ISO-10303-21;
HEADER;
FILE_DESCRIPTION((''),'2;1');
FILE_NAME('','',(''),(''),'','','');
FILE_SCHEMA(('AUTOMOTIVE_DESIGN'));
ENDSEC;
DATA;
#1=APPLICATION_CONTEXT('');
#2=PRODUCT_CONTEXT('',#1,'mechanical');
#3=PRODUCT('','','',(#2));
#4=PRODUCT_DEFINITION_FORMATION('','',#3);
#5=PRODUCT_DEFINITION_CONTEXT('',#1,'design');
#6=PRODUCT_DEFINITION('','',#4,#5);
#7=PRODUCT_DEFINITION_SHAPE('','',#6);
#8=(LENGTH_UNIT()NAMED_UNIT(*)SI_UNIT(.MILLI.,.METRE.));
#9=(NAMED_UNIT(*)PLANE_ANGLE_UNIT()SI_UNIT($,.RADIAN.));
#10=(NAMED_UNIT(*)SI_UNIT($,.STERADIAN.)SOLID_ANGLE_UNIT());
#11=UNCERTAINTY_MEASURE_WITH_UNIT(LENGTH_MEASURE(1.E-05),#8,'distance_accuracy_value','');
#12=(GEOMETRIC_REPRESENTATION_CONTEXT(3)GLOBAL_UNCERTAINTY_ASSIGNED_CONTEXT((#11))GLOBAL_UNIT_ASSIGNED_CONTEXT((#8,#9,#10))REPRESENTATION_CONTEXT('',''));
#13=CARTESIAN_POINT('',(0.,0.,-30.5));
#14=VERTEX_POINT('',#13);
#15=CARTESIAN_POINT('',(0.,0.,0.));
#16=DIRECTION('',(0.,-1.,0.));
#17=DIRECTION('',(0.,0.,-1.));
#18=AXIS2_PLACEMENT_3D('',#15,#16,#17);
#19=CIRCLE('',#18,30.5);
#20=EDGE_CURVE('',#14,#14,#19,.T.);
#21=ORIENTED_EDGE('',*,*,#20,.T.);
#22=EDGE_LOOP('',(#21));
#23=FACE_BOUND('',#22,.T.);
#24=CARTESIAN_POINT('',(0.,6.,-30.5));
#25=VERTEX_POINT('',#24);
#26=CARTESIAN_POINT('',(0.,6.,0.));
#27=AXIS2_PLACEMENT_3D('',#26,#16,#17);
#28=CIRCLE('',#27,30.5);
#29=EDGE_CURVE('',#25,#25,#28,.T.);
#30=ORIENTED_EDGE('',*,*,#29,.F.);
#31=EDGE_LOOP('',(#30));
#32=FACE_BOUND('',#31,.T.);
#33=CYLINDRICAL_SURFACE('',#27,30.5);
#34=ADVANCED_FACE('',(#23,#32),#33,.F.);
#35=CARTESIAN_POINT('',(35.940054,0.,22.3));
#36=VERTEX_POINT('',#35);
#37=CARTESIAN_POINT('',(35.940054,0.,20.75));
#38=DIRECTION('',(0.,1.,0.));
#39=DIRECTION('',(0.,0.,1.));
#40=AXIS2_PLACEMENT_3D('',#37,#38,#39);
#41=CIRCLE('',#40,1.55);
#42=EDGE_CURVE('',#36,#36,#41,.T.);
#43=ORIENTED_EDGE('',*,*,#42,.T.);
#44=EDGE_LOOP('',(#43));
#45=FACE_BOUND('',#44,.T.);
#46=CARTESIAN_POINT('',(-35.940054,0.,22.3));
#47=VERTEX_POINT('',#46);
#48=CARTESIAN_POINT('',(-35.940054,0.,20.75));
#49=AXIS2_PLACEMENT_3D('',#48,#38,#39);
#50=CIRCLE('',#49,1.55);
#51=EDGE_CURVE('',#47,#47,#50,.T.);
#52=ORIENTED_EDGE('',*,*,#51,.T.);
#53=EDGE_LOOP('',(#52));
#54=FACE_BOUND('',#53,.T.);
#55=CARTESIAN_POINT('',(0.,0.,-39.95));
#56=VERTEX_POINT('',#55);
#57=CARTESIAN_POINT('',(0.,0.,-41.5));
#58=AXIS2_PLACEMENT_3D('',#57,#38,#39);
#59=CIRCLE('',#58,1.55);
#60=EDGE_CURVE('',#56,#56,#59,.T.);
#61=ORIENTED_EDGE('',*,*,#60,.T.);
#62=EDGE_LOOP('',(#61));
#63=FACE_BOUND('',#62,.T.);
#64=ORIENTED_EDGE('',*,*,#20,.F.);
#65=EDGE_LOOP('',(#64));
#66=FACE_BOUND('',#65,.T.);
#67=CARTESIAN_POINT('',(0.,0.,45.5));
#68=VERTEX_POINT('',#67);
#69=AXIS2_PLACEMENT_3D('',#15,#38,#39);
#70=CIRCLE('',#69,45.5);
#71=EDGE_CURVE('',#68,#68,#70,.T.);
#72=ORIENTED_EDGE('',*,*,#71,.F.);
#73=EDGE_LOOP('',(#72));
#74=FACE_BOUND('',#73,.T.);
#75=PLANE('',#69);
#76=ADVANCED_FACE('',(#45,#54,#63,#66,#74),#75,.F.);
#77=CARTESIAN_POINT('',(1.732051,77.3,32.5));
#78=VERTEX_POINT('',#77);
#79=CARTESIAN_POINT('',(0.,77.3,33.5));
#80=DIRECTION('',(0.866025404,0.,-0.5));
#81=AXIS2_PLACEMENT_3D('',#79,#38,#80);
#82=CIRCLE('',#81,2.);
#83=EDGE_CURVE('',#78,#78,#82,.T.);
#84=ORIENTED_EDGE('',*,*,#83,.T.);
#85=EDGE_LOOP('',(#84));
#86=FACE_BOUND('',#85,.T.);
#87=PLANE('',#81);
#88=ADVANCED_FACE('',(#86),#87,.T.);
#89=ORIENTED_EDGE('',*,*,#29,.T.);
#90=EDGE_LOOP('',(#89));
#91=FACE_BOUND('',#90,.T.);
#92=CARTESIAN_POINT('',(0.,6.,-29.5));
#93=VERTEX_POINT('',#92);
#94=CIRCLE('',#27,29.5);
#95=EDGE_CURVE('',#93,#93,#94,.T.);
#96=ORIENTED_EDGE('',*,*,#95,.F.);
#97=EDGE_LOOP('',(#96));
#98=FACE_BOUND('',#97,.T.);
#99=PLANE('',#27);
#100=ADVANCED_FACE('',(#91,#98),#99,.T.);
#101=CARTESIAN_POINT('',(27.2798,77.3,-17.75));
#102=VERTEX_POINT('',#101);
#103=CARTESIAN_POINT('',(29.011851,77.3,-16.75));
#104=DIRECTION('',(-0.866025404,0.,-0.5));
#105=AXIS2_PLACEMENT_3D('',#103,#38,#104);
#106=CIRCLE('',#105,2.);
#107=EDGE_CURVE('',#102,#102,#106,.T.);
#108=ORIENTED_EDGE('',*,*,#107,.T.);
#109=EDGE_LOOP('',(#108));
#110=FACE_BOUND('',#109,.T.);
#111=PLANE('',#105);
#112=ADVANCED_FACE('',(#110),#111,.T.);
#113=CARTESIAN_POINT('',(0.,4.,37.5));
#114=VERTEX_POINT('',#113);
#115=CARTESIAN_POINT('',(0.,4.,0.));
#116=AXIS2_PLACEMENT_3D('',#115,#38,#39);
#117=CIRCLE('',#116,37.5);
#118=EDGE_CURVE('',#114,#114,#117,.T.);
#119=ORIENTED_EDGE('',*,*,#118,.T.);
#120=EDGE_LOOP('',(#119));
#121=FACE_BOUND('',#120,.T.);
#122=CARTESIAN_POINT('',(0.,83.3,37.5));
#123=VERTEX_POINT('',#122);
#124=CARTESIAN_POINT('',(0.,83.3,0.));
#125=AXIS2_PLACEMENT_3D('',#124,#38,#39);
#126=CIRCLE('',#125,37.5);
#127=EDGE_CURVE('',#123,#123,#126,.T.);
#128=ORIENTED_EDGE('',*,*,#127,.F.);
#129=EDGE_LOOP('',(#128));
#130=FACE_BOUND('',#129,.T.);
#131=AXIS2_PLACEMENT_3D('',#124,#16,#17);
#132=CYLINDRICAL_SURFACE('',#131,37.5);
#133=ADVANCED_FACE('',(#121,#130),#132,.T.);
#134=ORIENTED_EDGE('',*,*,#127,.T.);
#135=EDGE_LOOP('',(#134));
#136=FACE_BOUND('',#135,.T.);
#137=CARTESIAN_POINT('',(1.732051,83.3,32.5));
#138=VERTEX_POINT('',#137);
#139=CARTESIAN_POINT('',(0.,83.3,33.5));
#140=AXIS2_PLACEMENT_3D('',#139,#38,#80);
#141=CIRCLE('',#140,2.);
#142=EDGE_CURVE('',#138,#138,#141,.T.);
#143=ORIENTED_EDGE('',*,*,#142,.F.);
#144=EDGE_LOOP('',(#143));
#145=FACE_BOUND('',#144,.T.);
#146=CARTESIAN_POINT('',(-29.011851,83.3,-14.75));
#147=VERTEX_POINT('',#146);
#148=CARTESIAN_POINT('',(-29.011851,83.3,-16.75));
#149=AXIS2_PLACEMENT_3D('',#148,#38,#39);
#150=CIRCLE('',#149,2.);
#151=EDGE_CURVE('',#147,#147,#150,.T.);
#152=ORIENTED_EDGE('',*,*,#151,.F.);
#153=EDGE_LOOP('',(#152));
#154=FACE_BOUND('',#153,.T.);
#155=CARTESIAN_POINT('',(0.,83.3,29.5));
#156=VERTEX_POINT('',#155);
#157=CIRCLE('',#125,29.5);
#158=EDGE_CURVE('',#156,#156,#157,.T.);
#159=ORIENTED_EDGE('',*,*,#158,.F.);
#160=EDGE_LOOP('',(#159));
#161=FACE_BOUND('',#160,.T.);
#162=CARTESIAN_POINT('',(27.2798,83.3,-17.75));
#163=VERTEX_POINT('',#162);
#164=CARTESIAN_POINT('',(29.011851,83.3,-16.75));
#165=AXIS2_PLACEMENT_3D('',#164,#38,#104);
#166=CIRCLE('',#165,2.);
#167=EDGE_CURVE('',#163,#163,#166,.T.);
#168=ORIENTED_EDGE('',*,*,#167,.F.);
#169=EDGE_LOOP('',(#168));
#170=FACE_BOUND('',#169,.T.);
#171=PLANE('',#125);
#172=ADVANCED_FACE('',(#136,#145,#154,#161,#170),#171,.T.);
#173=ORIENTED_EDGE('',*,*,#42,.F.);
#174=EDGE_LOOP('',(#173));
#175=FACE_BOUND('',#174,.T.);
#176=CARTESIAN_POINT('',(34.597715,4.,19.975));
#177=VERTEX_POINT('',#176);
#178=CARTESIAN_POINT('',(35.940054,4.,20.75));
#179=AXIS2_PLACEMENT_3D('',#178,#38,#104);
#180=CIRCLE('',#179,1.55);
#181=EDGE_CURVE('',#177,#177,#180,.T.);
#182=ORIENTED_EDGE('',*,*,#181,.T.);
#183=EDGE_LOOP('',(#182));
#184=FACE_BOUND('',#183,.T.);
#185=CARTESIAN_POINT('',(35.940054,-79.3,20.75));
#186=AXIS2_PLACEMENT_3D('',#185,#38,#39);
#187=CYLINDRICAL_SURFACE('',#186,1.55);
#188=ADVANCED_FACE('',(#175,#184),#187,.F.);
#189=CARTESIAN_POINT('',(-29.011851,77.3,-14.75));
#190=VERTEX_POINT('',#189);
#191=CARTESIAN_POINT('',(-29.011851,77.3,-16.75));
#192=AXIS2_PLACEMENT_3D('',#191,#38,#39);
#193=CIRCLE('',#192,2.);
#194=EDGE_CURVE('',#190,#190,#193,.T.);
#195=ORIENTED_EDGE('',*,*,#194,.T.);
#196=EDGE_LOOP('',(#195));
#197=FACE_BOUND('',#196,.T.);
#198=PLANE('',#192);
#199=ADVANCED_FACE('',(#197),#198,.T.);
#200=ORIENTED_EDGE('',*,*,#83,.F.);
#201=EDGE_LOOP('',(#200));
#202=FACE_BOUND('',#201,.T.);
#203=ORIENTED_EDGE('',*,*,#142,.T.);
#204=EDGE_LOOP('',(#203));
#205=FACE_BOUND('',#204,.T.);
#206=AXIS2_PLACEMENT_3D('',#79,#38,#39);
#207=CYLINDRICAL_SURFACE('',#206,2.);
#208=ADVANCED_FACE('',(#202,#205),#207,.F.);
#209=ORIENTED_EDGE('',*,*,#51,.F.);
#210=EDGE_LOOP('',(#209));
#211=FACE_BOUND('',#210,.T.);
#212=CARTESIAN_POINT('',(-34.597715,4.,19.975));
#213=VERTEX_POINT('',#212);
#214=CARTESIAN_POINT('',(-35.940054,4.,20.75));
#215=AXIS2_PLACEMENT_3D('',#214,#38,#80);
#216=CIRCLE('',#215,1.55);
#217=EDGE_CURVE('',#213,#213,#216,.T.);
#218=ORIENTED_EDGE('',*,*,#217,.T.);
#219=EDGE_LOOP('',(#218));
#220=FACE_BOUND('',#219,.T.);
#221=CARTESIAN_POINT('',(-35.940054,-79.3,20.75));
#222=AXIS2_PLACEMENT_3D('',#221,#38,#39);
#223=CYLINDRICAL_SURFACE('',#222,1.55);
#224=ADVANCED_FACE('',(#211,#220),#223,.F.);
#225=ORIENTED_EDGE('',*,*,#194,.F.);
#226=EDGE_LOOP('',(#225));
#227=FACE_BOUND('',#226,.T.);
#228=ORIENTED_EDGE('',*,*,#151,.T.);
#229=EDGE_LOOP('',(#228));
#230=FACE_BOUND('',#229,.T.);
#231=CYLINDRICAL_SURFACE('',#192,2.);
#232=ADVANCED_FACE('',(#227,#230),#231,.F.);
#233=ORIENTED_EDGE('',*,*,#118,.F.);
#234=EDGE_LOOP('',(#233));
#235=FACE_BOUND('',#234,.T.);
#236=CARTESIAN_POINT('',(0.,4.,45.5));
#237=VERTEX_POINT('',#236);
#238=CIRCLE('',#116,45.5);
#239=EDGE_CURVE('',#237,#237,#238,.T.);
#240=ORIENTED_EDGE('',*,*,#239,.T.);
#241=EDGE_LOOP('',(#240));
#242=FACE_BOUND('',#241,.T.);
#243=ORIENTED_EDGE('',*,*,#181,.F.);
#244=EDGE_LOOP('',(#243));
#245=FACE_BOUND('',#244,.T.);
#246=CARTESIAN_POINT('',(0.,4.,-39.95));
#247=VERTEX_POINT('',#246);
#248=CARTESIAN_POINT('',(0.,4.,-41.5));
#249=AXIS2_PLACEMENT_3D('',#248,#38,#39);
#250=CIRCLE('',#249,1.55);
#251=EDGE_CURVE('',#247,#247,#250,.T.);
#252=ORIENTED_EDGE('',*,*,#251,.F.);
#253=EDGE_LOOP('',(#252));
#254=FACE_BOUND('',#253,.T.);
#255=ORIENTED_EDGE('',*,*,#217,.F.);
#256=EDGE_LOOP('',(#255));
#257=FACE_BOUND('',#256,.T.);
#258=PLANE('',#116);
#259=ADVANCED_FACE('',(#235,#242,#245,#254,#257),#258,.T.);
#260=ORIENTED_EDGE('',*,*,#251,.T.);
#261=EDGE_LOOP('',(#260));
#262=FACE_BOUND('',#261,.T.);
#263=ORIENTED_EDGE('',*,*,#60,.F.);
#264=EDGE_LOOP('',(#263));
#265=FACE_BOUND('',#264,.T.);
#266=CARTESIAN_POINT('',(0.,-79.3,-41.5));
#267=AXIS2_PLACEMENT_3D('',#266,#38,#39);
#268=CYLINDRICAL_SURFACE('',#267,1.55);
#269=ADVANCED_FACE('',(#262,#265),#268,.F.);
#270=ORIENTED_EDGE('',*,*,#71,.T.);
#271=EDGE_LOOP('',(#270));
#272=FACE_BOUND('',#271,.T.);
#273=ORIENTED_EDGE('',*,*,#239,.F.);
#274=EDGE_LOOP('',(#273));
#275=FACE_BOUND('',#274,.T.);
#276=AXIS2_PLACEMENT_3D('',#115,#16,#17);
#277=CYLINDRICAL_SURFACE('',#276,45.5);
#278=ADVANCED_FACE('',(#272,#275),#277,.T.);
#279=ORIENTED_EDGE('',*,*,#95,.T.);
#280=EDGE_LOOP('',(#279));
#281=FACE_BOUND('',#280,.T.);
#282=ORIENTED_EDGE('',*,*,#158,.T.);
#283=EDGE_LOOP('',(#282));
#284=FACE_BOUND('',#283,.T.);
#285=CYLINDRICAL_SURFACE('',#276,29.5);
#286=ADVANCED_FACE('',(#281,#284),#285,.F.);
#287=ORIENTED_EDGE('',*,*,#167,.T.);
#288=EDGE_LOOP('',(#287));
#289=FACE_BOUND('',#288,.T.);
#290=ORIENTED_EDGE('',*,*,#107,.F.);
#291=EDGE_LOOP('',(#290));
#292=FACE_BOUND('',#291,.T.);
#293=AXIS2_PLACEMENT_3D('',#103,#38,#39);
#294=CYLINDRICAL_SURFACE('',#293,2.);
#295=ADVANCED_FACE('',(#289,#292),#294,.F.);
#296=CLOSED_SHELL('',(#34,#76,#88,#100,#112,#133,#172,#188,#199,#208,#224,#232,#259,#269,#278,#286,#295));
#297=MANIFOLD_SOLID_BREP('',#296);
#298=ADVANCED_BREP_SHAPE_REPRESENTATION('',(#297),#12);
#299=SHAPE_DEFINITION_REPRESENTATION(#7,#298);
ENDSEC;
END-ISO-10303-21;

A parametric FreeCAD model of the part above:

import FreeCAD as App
import Part
import Sketcher
from FreeCAD import Vector

doc = App.newDocument("Part")
body = doc.addObject("PartDesign::Body", "Body")

# Sketch on XZ plane
sketch1 = body.newObject("Sketcher::SketchObject", "Sketch")
sketch1.AttachmentSupport = (doc.getObject("XZ_Plane"), [""])
sketch1.MapMode = "FlatFace"
sketch1.addGeometry(Part.Circle(Vector(0, 0, 0), Vector(0, 0, 1), 46), False)
sketch1.addGeometry(Part.Circle(Vector(0, 0, 0), Vector(0, 0, 1), 30), False)
sketch1.addConstraint(Sketcher.Constraint("Coincident", 0, 3, -1, 1))
sketch1.addConstraint(Sketcher.Constraint("Coincident", 1, 3, -1, 1))
sketch1.addConstraint(Sketcher.Constraint("Diameter", 0, 91.0))
sketch1.addConstraint(Sketcher.Constraint("Diameter", 1, 59.0))
pad1 = body.newObject("PartDesign::Pad", "Pad")
pad1.Profile = sketch1
pad1.Length = 4
pad1.Reversed = True

# Sketch on XZ plane
sketch2 = body.newObject("Sketcher::SketchObject", "Sketch001")
sketch2.AttachmentSupport = (doc.getObject("XZ_Plane"), [""])
sketch2.MapMode = "FlatFace"
sketch2.AttachmentOffset = App.Placement(Vector(0, 0, -4), App.Rotation())
sketch2.addGeometry(Part.Circle(Vector(0, 0, 0), Vector(0, 0, 1), 38), False)
sketch2.addGeometry(Part.Circle(Vector(0, 0, 0), Vector(0, 0, 1), 30), False)
sketch2.addConstraint(Sketcher.Constraint("Coincident", 0, 3, -1, 1))
sketch2.addConstraint(Sketcher.Constraint("Coincident", 1, 3, -1, 1))
sketch2.addConstraint(Sketcher.Constraint("Diameter", 0, 75.0))
sketch2.addConstraint(Sketcher.Constraint("Diameter", 1, 59.0))
pad2 = body.newObject("PartDesign::Pad", "Pad001")
pad2.Profile = sketch2
pad2.Length = 79.3
pad2.Reversed = True

# Sketch on XZ plane
sketch3 = body.newObject("Sketcher::SketchObject", "Sketch002")
sketch3.AttachmentSupport = (doc.getObject("XZ_Plane"), [""])
sketch3.MapMode = "FlatFace"
sketch3.AttachmentOffset = App.Placement(Vector(0, 0, -4), App.Rotation())
sketch3.addGeometry(Part.Circle(Vector(0, -41.5, 0), Vector(0, 0, 1), 1.6), False)
sketch3.addConstraint(Sketcher.Constraint("PointOnObject", 0, 3, -2))
sketch3.addConstraint(Sketcher.Constraint("Diameter", 0, 3.1))
sketch3.addConstraint(Sketcher.Constraint("DistanceY", 0, 3, -1, 1, 41.5))
pocket1 = body.newObject("PartDesign::Pocket", "Pocket")
pocket1.Profile = sketch3
pocket1.Length = 83.3
pocket1.Reversed = True
doc.recompute()

polarpattern = body.newObject("PartDesign::PolarPattern", "PolarPattern")
polarpattern.Originals = [pocket1]
polarpattern.Axis = (doc.getObject("Y_Axis"), [""])
polarpattern.Angle = 360
polarpattern.Occurrences = 3
body.Tip = polarpattern

# Sketch on XZ plane
sketch4 = body.newObject("Sketcher::SketchObject", "Sketch003")
sketch4.AttachmentSupport = (doc.getObject("XZ_Plane"), [""])
sketch4.MapMode = "FlatFace"
sketch4.AttachmentOffset = App.Placement(Vector(0, 0, -83.3), App.Rotation())
sketch4.addGeometry(Part.Circle(Vector(-29, -16.8, 0), Vector(0, 0, 1), 2), False)
sketch4.addConstraint(Sketcher.Constraint("Diameter", 0, 4.0))
sketch4.addConstraint(Sketcher.Constraint("DistanceY", 0, 3, -1, 1, 16.75))
sketch4.addConstraint(Sketcher.Constraint("DistanceX", 0, 3, -1, 1, 29.011851))
pocket2 = body.newObject("PartDesign::Pocket", "Pocket001")
pocket2.Profile = sketch4
pocket2.Length = 6
pocket2.Reversed = True
doc.recompute()

polarpattern2 = body.newObject("PartDesign::PolarPattern", "PolarPattern001")
polarpattern2.Originals = [pocket2]
polarpattern2.Axis = (doc.getObject("Y_Axis"), [""])
polarpattern2.Angle = 360
polarpattern2.Occurrences = 3
body.Tip = polarpattern2

# Sketch on XZ plane
sketch5 = body.newObject("Sketcher::SketchObject", "Sketch004")
sketch5.AttachmentSupport = (doc.getObject("XZ_Plane"), [""])
sketch5.MapMode = "FlatFace"
sketch5.addGeometry(Part.Circle(Vector(0, 0, 0), Vector(0, 0, 1), 30), False)
sketch5.addConstraint(Sketcher.Constraint("Coincident", 0, 3, -1, 1))
sketch5.addConstraint(Sketcher.Constraint("Diameter", 0, 61.0))
pocket3 = body.newObject("PartDesign::Pocket", "Pocket002")
pocket3.Profile = sketch5
pocket3.Length = 6

doc.recompute()
